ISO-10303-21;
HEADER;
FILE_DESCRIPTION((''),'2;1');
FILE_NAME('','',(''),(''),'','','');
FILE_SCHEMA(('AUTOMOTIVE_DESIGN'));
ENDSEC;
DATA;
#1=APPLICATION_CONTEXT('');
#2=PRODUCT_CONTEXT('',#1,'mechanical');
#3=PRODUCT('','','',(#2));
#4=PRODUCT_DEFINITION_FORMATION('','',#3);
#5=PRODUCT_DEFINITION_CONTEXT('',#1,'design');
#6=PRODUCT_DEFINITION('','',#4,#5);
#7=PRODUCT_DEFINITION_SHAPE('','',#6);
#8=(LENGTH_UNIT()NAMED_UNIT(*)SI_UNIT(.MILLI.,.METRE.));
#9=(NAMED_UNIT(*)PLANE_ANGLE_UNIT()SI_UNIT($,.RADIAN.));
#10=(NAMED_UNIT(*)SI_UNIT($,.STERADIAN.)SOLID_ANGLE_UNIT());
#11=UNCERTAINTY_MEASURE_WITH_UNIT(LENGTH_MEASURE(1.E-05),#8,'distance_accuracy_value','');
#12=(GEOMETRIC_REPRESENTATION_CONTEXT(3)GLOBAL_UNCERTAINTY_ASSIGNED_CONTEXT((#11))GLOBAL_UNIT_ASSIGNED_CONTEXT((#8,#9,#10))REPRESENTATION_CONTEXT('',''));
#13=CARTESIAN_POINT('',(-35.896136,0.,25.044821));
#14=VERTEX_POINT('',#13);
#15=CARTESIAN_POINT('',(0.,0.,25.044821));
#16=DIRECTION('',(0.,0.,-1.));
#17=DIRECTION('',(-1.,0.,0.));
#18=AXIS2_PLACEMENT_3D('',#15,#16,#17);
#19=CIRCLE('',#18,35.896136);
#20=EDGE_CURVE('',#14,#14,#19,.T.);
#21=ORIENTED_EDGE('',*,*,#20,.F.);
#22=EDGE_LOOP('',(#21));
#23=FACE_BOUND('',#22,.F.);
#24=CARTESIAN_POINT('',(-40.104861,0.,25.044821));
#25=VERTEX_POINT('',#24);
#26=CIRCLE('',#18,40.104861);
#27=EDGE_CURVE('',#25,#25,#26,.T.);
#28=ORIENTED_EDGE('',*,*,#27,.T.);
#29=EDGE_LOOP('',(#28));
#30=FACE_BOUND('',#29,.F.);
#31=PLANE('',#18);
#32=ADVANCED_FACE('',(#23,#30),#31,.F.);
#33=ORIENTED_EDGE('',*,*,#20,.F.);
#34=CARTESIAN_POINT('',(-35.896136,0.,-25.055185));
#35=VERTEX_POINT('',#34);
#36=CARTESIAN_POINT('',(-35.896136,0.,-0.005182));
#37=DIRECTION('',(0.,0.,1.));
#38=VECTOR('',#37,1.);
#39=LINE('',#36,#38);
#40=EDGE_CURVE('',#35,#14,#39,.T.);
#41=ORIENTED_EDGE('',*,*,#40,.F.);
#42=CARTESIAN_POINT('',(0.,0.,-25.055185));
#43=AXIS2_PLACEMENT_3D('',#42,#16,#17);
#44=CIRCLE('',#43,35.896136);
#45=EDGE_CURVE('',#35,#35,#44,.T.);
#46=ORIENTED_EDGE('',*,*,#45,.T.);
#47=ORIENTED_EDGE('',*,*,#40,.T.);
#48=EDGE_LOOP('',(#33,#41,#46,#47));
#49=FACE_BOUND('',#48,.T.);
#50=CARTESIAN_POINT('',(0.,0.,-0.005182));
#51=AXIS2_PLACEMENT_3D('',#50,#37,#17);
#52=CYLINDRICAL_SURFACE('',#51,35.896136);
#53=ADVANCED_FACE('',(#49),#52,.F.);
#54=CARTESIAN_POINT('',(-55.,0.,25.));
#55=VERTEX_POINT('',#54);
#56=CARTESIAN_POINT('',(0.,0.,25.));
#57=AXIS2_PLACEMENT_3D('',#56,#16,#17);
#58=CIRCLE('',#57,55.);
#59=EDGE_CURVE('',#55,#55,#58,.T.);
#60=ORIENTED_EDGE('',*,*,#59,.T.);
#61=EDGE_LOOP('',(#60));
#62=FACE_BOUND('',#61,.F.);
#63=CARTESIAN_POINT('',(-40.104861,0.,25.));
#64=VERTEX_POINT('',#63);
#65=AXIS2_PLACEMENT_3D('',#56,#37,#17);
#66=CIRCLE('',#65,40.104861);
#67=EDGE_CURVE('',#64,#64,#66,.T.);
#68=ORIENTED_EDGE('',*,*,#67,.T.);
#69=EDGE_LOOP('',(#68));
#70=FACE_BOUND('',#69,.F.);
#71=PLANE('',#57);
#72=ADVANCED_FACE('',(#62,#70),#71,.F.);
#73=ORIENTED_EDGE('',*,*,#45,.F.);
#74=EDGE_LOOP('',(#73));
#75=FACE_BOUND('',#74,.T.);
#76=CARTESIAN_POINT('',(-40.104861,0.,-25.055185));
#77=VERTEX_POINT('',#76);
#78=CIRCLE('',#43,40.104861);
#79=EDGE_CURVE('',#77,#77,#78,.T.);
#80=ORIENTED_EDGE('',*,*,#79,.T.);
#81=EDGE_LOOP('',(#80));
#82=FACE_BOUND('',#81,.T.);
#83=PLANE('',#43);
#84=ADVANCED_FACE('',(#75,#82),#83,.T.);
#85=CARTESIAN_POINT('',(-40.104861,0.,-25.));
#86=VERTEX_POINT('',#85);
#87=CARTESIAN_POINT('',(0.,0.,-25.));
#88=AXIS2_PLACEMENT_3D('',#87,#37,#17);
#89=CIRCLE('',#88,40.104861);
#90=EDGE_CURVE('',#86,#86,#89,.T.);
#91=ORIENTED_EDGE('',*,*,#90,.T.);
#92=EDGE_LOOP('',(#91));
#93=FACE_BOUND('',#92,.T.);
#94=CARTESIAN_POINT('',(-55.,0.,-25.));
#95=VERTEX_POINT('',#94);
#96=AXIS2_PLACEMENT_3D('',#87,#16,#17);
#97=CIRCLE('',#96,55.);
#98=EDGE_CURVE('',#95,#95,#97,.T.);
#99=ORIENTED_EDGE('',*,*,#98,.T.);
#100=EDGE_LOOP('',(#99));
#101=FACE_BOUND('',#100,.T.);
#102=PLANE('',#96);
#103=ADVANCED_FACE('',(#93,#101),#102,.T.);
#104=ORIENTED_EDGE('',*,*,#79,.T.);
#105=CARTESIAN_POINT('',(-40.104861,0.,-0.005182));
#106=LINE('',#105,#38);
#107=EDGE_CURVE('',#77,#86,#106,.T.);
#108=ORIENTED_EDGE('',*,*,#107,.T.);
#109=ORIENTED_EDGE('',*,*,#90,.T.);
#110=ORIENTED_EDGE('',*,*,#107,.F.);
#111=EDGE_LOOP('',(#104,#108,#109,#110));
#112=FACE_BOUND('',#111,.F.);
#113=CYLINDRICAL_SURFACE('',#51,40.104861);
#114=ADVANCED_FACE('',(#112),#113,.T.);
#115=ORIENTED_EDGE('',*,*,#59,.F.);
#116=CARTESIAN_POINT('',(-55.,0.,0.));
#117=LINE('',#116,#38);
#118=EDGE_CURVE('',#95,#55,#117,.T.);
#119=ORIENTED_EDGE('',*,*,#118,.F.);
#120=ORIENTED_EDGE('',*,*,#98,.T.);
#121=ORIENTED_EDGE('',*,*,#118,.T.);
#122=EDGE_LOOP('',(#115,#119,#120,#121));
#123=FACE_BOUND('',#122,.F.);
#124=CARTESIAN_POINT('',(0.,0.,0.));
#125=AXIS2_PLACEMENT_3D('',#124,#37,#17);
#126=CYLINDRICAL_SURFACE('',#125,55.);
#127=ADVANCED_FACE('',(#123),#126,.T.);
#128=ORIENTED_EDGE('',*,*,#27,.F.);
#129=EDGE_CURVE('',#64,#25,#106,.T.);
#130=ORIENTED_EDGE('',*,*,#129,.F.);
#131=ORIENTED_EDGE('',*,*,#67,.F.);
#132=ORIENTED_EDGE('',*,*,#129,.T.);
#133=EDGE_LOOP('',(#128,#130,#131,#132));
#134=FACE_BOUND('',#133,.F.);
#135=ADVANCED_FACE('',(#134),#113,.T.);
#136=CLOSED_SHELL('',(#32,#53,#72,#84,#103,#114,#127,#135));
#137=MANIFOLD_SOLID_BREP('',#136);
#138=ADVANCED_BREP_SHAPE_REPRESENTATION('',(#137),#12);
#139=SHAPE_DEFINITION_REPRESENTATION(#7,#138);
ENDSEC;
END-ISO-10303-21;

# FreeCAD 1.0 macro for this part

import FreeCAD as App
import Part
import Sketcher
Q = App.Units.Quantity


def add_polygon(sketch, points):
    """Adds a closed chain of lines whose ends are joined by coincident constraints."""
    first, n = sketch.GeometryCount, len(points)
    for a, b in zip(points, points[1:] + points[:1]):
        sketch.addGeometry(Part.LineSegment(App.Vector(*a, 0), App.Vector(*b, 0)), False)
    for i in range(n):
        sketch.addConstraint(Sketcher.Constraint("Coincident", first + i, 2, first + (i + 1) % n, 1))

doc = App.newDocument("Part")
body = doc.addObject("PartDesign::Body", "Body")

# Sketch on XZ plane
sketch1 = body.newObject("Sketcher::SketchObject", "Sketch")
sketch1.AttachmentSupport = (doc.getObject("XZ_Plane"), [""])
sketch1.MapMode = "FlatFace"
add_polygon(sketch1, [(-55, 25), (-55, -25), (-40, -25), (-40, 25)])  # lines 0-3
sketch1.addConstraint(Sketcher.Constraint("Vertical", 0))
sketch1.addConstraint(Sketcher.Constraint("Horizontal", 1))
sketch1.addConstraint(Sketcher.Constraint("Vertical", 2))
sketch1.addConstraint(Sketcher.Constraint("Horizontal", 3))
sketch1.addConstraint(Sketcher.Constraint("DistanceX", 1, 1, 1, 2, Q("15 mm")))
sketch1.addConstraint(Sketcher.Constraint("DistanceY", 0, 2, 0, 1, Q("50 mm")))
sketch1.addConstraint(Sketcher.Constraint("DistanceX", 0, 2, -1, 1, Q("55 mm")))
sketch1.addConstraint(Sketcher.Constraint("DistanceY", 0, 2, -1, 1, Q("25 mm")))
revolution = body.newObject("PartDesign::Revolution", "Revolution")
revolution.Profile = sketch1
revolution.ReferenceAxis = (sketch1, ["V_Axis"])
revolution.Angle = 360

# Sketch on XZ plane
sketch2 = body.newObject("Sketcher::SketchObject", "Sketch001")
sketch2.AttachmentSupport = (doc.getObject("XZ_Plane"), [""])
sketch2.MapMode = "FlatFace"
add_polygon(sketch2, [(-40.104861, 25.044821), (-40.104861, -25.055185), (-35.896136, -25.055185), (-35.896136, 25.044821)])  # lines 0-3
sketch2.addConstraint(Sketcher.Constraint("Vertical", 0))
sketch2.addConstraint(Sketcher.Constraint("Horizontal", 1))
sketch2.addConstraint(Sketcher.Constraint("Vertical", 2))
sketch2.addConstraint(Sketcher.Constraint("Horizontal", 3))
sketch2.addConstraint(Sketcher.Constraint("DistanceX", 1, 1, 1, 2, Q("4.208725 mm")))
sketch2.addConstraint(Sketcher.Constraint("DistanceY", 0, 2, 0, 1, Q("50.100006 mm")))
sketch2.addConstraint(Sketcher.Constraint("DistanceX", 0, 2, -1, 1, Q("40.104861 mm")))
sketch2.addConstraint(Sketcher.Constraint("DistanceY", -1, 1, 2, 2, Q("25.044821 mm")))
revolution2 = body.newObject("PartDesign::Revolution", "Revolution001")
revolution2.Profile = sketch2
revolution2.ReferenceAxis = (sketch2, ["V_Axis"])
revolution2.Angle = 360

doc.recompute()
